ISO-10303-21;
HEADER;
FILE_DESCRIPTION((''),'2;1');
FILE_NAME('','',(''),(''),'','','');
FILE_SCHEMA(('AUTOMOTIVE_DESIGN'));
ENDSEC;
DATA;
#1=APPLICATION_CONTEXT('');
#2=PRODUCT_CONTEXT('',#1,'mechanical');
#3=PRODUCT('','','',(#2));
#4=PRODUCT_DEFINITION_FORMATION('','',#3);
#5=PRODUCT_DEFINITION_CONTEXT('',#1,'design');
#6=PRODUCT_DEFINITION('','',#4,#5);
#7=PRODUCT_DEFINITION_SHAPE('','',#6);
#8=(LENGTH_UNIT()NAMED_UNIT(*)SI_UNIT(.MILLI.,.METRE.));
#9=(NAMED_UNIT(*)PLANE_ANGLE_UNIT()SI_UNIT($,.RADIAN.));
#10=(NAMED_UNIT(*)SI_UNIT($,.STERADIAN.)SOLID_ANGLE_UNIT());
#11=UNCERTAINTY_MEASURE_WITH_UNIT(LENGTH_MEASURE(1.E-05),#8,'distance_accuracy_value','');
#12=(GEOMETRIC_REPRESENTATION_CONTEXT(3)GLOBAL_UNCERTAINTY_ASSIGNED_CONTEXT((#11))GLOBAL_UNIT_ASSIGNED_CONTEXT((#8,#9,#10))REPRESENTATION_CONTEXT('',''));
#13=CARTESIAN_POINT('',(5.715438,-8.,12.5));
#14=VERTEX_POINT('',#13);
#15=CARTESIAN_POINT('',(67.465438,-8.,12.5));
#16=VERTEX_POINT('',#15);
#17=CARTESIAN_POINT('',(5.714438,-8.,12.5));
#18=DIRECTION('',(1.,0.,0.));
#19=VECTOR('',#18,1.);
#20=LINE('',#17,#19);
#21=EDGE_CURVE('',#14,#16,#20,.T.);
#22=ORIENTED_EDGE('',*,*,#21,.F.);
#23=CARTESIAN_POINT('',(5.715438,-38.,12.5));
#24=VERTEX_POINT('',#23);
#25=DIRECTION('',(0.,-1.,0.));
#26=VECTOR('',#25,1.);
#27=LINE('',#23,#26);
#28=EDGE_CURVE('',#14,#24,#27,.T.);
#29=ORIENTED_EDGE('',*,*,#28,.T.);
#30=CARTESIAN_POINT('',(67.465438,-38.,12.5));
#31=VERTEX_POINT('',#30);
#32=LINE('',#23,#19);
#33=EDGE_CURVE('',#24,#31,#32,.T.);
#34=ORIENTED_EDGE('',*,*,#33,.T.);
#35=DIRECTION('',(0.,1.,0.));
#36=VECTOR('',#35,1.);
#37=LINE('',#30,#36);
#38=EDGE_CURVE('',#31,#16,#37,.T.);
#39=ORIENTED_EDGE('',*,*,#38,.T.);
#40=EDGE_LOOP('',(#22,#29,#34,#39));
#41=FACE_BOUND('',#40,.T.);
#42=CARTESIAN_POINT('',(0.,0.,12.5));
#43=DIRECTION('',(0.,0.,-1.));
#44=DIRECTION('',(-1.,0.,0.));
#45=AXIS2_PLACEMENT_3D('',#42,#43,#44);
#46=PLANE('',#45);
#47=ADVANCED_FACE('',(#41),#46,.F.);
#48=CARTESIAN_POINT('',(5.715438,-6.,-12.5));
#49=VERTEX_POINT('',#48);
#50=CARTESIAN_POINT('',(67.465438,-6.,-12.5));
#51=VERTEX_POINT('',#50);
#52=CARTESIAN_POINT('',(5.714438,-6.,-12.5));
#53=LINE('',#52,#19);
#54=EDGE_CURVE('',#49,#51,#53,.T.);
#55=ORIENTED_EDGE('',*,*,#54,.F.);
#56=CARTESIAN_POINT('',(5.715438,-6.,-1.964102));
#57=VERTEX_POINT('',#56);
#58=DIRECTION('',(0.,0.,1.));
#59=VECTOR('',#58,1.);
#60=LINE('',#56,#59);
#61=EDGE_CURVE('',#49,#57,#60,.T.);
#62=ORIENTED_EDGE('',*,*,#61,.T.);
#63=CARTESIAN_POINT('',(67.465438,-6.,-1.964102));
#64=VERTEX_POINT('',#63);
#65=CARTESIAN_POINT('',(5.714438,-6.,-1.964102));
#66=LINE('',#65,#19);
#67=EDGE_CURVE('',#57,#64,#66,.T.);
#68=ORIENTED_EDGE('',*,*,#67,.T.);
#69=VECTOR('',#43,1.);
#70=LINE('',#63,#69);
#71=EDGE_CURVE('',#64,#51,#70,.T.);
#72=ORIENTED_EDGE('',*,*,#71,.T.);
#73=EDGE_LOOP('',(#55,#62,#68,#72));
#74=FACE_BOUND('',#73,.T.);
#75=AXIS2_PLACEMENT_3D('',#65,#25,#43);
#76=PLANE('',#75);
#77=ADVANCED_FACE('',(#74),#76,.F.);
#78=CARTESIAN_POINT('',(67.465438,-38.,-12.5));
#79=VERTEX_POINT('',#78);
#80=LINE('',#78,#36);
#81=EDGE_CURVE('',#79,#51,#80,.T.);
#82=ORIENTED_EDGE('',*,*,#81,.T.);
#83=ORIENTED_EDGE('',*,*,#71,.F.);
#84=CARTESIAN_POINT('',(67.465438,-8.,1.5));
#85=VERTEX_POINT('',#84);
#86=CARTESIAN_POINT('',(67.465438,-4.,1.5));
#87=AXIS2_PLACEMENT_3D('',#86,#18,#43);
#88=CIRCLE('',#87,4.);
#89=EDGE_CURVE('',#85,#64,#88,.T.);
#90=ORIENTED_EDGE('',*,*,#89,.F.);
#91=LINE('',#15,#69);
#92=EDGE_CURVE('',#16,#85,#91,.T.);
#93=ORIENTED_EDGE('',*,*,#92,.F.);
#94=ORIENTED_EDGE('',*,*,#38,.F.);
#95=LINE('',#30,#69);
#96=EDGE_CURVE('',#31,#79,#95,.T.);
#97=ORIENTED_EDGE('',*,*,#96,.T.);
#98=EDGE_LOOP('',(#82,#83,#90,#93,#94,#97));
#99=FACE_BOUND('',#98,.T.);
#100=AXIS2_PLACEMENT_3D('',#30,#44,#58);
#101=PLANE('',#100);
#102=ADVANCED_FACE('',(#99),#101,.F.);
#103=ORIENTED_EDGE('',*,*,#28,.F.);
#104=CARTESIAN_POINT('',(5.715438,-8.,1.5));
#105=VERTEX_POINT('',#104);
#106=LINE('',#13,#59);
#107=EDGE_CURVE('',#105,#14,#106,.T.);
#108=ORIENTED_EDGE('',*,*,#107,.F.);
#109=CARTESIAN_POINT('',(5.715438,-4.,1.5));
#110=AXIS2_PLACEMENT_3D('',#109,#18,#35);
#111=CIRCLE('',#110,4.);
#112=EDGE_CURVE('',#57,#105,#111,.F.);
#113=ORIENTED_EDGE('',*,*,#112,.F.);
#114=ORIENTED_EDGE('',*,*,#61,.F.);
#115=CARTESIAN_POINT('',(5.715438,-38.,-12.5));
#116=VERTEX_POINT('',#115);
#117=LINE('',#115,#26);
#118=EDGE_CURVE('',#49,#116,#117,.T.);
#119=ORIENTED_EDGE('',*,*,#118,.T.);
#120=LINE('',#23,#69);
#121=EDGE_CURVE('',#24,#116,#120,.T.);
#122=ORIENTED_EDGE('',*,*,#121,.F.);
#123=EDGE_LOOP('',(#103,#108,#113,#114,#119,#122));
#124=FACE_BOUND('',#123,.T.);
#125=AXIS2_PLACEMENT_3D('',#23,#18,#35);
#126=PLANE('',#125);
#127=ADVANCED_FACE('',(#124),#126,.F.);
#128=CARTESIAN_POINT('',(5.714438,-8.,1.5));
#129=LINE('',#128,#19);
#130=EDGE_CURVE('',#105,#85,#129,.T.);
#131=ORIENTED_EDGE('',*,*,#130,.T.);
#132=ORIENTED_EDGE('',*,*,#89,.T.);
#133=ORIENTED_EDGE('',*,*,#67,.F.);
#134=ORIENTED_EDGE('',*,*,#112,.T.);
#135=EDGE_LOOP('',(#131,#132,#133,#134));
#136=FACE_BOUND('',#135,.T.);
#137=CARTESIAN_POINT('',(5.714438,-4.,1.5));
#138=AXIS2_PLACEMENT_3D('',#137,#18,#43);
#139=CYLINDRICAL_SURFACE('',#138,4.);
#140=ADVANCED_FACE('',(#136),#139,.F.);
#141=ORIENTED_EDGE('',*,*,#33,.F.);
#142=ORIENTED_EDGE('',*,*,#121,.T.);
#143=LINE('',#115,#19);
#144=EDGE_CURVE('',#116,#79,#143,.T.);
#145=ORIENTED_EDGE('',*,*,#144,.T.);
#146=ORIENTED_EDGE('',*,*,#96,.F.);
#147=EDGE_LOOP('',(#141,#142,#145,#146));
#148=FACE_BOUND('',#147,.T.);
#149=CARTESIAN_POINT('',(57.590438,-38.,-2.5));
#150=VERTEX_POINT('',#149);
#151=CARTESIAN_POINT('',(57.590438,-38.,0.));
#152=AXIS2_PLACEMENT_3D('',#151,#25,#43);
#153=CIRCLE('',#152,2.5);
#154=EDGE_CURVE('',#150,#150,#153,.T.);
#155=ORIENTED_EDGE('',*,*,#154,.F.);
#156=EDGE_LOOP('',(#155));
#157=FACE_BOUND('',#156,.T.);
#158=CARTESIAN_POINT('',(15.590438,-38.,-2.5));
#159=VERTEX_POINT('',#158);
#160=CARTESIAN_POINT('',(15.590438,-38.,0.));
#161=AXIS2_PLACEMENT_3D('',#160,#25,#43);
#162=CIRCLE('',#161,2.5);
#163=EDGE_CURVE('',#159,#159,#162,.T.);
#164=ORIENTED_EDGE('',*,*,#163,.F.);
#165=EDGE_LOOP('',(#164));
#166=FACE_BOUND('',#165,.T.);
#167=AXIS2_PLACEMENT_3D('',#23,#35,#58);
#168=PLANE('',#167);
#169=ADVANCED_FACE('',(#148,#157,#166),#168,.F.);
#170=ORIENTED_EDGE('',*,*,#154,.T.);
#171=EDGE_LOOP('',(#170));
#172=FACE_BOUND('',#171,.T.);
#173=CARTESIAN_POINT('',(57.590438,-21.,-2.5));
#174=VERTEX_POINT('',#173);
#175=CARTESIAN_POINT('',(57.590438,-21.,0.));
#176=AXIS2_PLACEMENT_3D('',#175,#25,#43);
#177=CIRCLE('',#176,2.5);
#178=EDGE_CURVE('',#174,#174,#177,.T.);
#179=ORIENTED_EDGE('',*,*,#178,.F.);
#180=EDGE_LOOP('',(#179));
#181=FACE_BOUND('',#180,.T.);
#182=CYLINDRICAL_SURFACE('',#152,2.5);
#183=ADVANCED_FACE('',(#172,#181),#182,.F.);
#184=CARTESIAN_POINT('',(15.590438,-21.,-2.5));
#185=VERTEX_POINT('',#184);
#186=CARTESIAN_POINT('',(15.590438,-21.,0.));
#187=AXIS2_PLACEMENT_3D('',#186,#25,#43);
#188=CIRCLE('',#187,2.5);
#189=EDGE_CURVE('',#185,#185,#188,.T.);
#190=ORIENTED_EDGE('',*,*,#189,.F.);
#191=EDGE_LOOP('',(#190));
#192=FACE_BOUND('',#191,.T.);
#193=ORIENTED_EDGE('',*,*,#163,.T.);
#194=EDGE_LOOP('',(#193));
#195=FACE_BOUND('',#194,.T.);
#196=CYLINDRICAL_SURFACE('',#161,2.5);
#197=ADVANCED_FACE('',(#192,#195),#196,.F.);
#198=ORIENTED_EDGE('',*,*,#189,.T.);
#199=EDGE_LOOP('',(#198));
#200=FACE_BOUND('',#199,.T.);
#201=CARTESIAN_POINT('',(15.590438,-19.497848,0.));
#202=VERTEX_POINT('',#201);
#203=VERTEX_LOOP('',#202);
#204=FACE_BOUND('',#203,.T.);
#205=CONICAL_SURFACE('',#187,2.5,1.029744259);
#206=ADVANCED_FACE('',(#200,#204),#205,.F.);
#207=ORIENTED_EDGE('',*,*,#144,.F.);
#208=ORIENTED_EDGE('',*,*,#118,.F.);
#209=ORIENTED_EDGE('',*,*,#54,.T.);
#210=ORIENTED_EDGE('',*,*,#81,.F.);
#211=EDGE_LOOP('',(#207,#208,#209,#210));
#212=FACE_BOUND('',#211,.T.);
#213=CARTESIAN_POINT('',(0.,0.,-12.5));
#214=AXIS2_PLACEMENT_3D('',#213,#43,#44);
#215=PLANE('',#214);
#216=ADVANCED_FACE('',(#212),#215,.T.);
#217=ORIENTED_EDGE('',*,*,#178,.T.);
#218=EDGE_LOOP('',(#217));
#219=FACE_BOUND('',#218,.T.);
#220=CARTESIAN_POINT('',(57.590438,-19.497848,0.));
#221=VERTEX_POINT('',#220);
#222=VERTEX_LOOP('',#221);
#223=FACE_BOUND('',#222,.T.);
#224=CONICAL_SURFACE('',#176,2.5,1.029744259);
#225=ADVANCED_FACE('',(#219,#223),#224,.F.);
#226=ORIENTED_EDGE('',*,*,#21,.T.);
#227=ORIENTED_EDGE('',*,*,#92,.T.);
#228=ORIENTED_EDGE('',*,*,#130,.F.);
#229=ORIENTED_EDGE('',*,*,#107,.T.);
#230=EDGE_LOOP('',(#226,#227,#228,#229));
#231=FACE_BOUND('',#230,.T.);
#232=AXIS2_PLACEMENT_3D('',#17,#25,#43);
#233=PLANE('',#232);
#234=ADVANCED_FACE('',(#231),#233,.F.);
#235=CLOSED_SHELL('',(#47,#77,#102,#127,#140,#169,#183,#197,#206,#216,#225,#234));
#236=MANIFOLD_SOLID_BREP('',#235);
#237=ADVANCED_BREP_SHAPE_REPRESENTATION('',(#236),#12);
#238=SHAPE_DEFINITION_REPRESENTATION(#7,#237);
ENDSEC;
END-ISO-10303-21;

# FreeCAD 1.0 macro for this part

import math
import FreeCAD as App
import Part
import Sketcher

V = App.Vector
Q = App.Units.Quantity

doc = App.newDocument("Part")
body = doc.addObject("PartDesign::Body", "Body")

# Sketch on XY plane
sketch1 = body.newObject("Sketcher::SketchObject", "Sketch")
sketch1.AttachmentSupport = (doc.getObject("XY_Plane"), [""])
sketch1.MapMode = "FlatFace"
sketch1.addGeometry([
    Part.LineSegment(V(6, 0, 0), V(6, -38, 0)),
    Part.LineSegment(V(6, -38, 0), V(67, -38, 0)),
    Part.LineSegment(V(67, -38, 0), V(67, 0, 0)),
    Part.LineSegment(V(67, 0, 0), V(6, 0, 0)),
], False)
sketch1.addConstraint([
    Sketcher.Constraint("Coincident", 0, 2, 1, 1),
    Sketcher.Constraint("Coincident", 1, 2, 2, 1),
    Sketcher.Constraint("Coincident", 2, 2, 3, 1),
    Sketcher.Constraint("Coincident", 3, 2, 0, 1),
    Sketcher.Constraint("Vertical", 0),
    Sketcher.Constraint("Horizontal", 1),
    Sketcher.Constraint("Vertical", 2),
    Sketcher.Constraint("Horizontal", 3),
    Sketcher.Constraint("PointOnObject", 2, 2, -1),
    Sketcher.Constraint("DistanceY", 0, 2, 0, 1, Q("38 mm")),
    Sketcher.Constraint("DistanceX", 1, 1, 1, 2, Q("61.75 mm")),
    Sketcher.Constraint("DistanceX", -1, 1, 0, 2, Q("5.715438 mm")),
])
pad1 = body.newObject("PartDesign::Pad", "Pad")
pad1.Profile = sketch1
pad1.Length = 25
pad1.Midplane = True

# Sketch on YZ plane
sketch2 = body.newObject("Sketcher::SketchObject", "Sketch001")
sketch2.AttachmentSupport = (doc.getObject("YZ_Plane"), [""])
sketch2.MapMode = "FlatFace"
sketch2.AttachmentOffset = App.Placement(V(0, 0, 67.465438), App.Rotation())
sketch2.addGeometry([
    Part.LineSegment(V(-6, -2, 0), V(-6, -12.5, 0)),  # 0
    Part.LineSegment(V(-6, -12.5, 0), V(0, -12.5, 0)),  # 1
    Part.LineSegment(V(0, -12.5, 0), V(0, 12.5, 0)),  # 2
    Part.LineSegment(V(0, 12.5, 0), V(-8, 12.5, 0)),  # 3
    Part.LineSegment(V(-8, 12.5, 0), V(-8, 1.5, 0)),  # 4
    Part.ArcOfCircle(Part.Circle(V(-4, 1.5, 0), V(0, 0, 1), 4), math.radians(180), math.radians(240)),  # 5
], False)
sketch2.addConstraint([
    Sketcher.Constraint("Coincident", 0, 2, 1, 1),
    Sketcher.Constraint("Coincident", 1, 2, 2, 1),
    Sketcher.Constraint("Coincident", 2, 2, 3, 1),
    Sketcher.Constraint("Coincident", 3, 2, 4, 1),
    Sketcher.Constraint("Tangent", 4, 2, 5, 1),
    Sketcher.Constraint("Coincident", 5, 2, 0, 1),
    Sketcher.Constraint("Vertical", 0),
    Sketcher.Constraint("Horizontal", 1),
    Sketcher.Constraint("Vertical", 2),
    Sketcher.Constraint("Horizontal", 3),
    Sketcher.Constraint("Vertical", 4),
    Sketcher.Constraint("Symmetric", 1, 2, 2, 2, -1, 1),
    Sketcher.Constraint("Radius", 5, Q("4 mm")),
    Sketcher.Constraint("DistanceX", 1, 1, 1, 2, Q("6 mm")),
    Sketcher.Constraint("DistanceX", 3, 2, 3, 1, Q("8 mm")),
    Sketcher.Constraint("DistanceY", 2, 1, 2, 2, Q("25 mm")),
    Sketcher.Constraint("DistanceY", 4, 2, 4, 1, Q("11 mm")),
])
pocket1 = body.newObject("PartDesign::Pocket", "Pocket")
pocket1.Profile = sketch2
pocket1.Type = "UpToFirst"

# Sketch on XZ plane
sketch3 = body.newObject("Sketcher::SketchObject", "Sketch002")
sketch3.AttachmentSupport = (doc.getObject("XZ_Plane"), [""])
sketch3.MapMode = "FlatFace"
sketch3.AttachmentOffset = App.Placement(V(0, 0, 38), App.Rotation())
sketch3.addGeometry([
    Part.Circle(V(15.6, 0, 0), V(0, 0, 1), 2.5),
    Part.Circle(V(57.6, 0, 0), V(0, 0, 1), 2.5),
], False)
sketch3.addConstraint([
    Sketcher.Constraint("Equal", 0, 1),
    Sketcher.Constraint("PointOnObject", 0, 3, -1),
    Sketcher.Constraint("PointOnObject", 1, 3, -1),
    Sketcher.Constraint("Diameter", 0, Q("5 mm")),
    Sketcher.Constraint("DistanceX", 0, 3, 1, 3, Q("42 mm")),
    Sketcher.Constraint("DistanceX", -1, 1, 0, 3, Q("15.590438 mm")),
])
doc.recompute()
hole = body.newObject("PartDesign::Hole", "Hole")
hole.Profile = sketch3
hole.ThreadType = "None"
hole.Diameter = 5
hole.DepthType = "Dimension"
hole.Depth = 17
hole.DrillPoint = "Angled"
hole.DrillPointAngle = 118

doc.recompute()
